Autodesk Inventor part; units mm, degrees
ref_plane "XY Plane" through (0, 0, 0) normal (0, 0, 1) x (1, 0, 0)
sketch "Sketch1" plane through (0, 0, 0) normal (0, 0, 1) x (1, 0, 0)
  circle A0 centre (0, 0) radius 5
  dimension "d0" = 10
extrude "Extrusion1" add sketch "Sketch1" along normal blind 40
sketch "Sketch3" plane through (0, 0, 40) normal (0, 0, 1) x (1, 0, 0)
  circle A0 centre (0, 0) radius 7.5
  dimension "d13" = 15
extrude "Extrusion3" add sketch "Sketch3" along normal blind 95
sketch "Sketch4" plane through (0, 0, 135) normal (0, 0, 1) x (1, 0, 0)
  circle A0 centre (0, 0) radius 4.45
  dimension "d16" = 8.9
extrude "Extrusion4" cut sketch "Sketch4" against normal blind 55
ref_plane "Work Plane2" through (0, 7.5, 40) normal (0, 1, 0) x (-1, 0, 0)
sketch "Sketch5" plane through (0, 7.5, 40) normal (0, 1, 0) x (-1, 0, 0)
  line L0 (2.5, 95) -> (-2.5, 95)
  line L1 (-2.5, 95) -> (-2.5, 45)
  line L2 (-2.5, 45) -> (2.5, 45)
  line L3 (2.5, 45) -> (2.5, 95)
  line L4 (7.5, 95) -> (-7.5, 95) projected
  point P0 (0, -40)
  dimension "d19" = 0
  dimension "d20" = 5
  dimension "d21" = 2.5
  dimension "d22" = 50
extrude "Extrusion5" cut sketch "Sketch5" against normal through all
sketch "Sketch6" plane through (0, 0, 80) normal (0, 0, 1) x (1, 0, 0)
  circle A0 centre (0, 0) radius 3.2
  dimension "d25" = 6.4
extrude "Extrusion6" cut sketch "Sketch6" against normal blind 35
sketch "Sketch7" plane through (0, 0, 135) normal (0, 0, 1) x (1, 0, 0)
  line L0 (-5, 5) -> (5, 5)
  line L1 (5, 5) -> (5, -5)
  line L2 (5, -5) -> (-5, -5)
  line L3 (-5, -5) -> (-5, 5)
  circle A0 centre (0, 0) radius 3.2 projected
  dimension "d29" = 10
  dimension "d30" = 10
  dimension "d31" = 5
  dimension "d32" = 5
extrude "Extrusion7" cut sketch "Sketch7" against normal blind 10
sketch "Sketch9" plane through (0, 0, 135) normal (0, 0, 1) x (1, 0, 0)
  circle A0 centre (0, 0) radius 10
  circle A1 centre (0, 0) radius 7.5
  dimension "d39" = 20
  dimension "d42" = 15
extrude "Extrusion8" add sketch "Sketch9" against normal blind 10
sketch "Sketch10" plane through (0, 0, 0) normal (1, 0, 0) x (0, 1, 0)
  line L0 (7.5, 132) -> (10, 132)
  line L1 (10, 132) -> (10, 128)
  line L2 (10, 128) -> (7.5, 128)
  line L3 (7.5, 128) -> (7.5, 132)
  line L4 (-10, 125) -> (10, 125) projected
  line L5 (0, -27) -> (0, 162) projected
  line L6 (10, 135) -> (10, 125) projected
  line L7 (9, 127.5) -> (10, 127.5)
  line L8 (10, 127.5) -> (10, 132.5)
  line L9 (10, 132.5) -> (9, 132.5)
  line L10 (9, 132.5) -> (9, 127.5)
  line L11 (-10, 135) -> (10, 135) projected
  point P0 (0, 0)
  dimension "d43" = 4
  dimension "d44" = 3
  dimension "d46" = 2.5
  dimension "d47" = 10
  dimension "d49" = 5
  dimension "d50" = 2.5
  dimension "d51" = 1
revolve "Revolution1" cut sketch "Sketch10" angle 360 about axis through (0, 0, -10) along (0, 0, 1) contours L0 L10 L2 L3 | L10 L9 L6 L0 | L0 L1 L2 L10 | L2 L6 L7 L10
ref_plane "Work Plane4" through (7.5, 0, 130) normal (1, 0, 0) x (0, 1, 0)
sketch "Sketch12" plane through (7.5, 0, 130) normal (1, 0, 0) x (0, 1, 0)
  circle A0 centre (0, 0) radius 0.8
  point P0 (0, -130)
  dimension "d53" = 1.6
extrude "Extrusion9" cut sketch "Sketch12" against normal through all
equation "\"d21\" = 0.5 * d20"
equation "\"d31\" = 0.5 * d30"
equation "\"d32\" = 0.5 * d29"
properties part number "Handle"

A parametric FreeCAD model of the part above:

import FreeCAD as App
import Part
import Sketcher

V = App.Vector
Q = App.Units.Quantity

doc = App.newDocument("Part")
body = doc.addObject("PartDesign::Body", "Body")

# Sketch on XY plane
sketch1 = body.newObject("Sketcher::SketchObject", "Sketch")
sketch1.AttachmentSupport = (doc.getObject("XY_Plane"), [""])
sketch1.MapMode = "FlatFace"
sketch1.addGeometry(Part.Circle(V(0, 0, 0), V(0, 0, 1), 5), False)
sketch1.addConstraint(Sketcher.Constraint("Coincident", 0, 3, -1, 1))
sketch1.addConstraint(Sketcher.Constraint("Diameter", 0, Q("10 mm")))
pad1 = body.newObject("PartDesign::Pad", "Pad")
pad1.Profile = sketch1
pad1.Length = 40

# Sketch on XY plane
sketch2 = body.newObject("Sketcher::SketchObject", "Sketch001")
sketch2.AttachmentSupport = (doc.getObject("XY_Plane"), [""])
sketch2.MapMode = "FlatFace"
sketch2.AttachmentOffset = App.Placement(V(0, 0, 40), App.Rotation())
sketch2.addGeometry(Part.Circle(V(0, 0, 0), V(0, 0, 1), 8), False)
sketch2.addConstraint(Sketcher.Constraint("Coincident", 0, 3, -1, 1))
sketch2.addConstraint(Sketcher.Constraint("Diameter", 0, Q("15 mm")))
pad2 = body.newObject("PartDesign::Pad", "Pad001")
pad2.Profile = sketch2
pad2.Length = 95

# Sketch on XY plane
sketch3 = body.newObject("Sketcher::SketchObject", "Sketch002")
sketch3.AttachmentSupport = (doc.getObject("XY_Plane"), [""])
sketch3.MapMode = "FlatFace"
sketch3.AttachmentOffset = App.Placement(V(0, 0, 135), App.Rotation())
sketch3.addGeometry(Part.Circle(V(0, 0, 0), V(0, 0, 1), 4.5), False)
sketch3.addConstraint(Sketcher.Constraint("Coincident", 0, 3, -1, 1))
sketch3.addConstraint(Sketcher.Constraint("Diameter", 0, Q("8.9 mm")))
pocket1 = body.newObject("PartDesign::Pocket", "Pocket")
pocket1.Profile = sketch3
pocket1.Length = 55

# Sketch on XZ plane
sketch4 = body.newObject("Sketcher::SketchObject", "Sketch003")
sketch4.AttachmentSupport = (doc.getObject("XZ_Plane"), [""])
sketch4.MapMode = "FlatFace"
sketch4.AttachmentOffset = App.Placement(V(0, 0, -7.5), App.Rotation())
sketch4.addGeometry(Part.LineSegment(V(-2, 85, 0), V(-2, 135, 0)), False)
sketch4.addGeometry(Part.LineSegment(V(-2, 135, 0), V(2, 135, 0)), False)
sketch4.addGeometry(Part.LineSegment(V(2, 135, 0), V(2, 85, 0)), False)
sketch4.addGeometry(Part.LineSegment(V(2, 85, 0), V(-2, 85, 0)), False)
sketch4.addConstraint(Sketcher.Constraint("Coincident", 0, 2, 1, 1))
sketch4.addConstraint(Sketcher.Constraint("Coincident", 1, 2, 2, 1))
sketch4.addConstraint(Sketcher.Constraint("Coincident", 2, 2, 3, 1))
sketch4.addConstraint(Sketcher.Constraint("Coincident", 3, 2, 0, 1))
sketch4.addConstraint(Sketcher.Constraint("Vertical", 0))
sketch4.addConstraint(Sketcher.Constraint("Horizontal", 1))
sketch4.addConstraint(Sketcher.Constraint("Vertical", 2))
sketch4.addConstraint(Sketcher.Constraint("Horizontal", 3))
sketch4.addConstraint(Sketcher.Constraint("DistanceX", 1, 1, 1, 2, Q("5 mm")))
sketch4.addConstraint(Sketcher.Constraint("DistanceY", 0, 1, 0, 2, Q("50 mm")))
sketch4.addConstraint(Sketcher.Constraint("DistanceX", 0, 2, -1, 1, Q("2.5 mm")))
sketch4.addConstraint(Sketcher.Constraint("DistanceY", -1, 1, 0, 2, Q("135 mm")))
pocket2 = body.newObject("PartDesign::Pocket", "Pocket001")
pocket2.Profile = sketch4
pocket2.Type = "ThroughAll"
pocket2.Reversed = True

# Sketch on XY plane
sketch5 = body.newObject("Sketcher::SketchObject", "Sketch004")
sketch5.AttachmentSupport = (doc.getObject("XY_Plane"), [""])
sketch5.MapMode = "FlatFace"
sketch5.AttachmentOffset = App.Placement(V(0, 0, 80), App.Rotation())
sketch5.addGeometry(Part.Circle(V(0, 0, 0), V(0, 0, 1), 3.2), False)
sketch5.addConstraint(Sketcher.Constraint("Coincident", 0, 3, -1, 1))
sketch5.addConstraint(Sketcher.Constraint("Diameter", 0, Q("6.4 mm")))
pocket3 = body.newObject("PartDesign::Pocket", "Pocket002")
pocket3.Profile = sketch5
pocket3.Length = 35

# Sketch on XY plane
sketch6 = body.newObject("Sketcher::SketchObject", "Sketch005")
sketch6.AttachmentSupport = (doc.getObject("XY_Plane"), [""])
sketch6.MapMode = "FlatFace"
sketch6.AttachmentOffset = App.Placement(V(0, 0, 135), App.Rotation())
sketch6.addGeometry(Part.LineSegment(V(5, 5, 0), V(-5, 5, 0)), False)
sketch6.addGeometry(Part.LineSegment(V(-5, 5, 0), V(-5, -5, 0)), False)
sketch6.addGeometry(Part.LineSegment(V(-5, -5, 0), V(5, -5, 0)), False)
sketch6.addGeometry(Part.LineSegment(V(5, -5, 0), V(5, 5, 0)), False)
sketch6.addGeometry(Part.Circle(V(0, 0, 0), V(0, 0, 1), 3.2), False)
sketch6.addConstraint(Sketcher.Constraint("Coincident", 0, 2, 1, 1))
sketch6.addConstraint(Sketcher.Constraint("Coincident", 1, 2, 2, 1))
sketch6.addConstraint(Sketcher.Constraint("Coincident", 2, 2, 3, 1))
sketch6.addConstraint(Sketcher.Constraint("Coincident", 3, 2, 0, 1))
sketch6.addConstraint(Sketcher.Constraint("Horizontal", 0))
sketch6.addConstraint(Sketcher.Constraint("Vertical", 1))
sketch6.addConstraint(Sketcher.Constraint("Horizontal", 2))
sketch6.addConstraint(Sketcher.Constraint("Vertical", 3))
sketch6.addConstraint(Sketcher.Constraint("Coincident", 4, 3, -1, 1))
sketch6.addConstraint(Sketcher.Constraint("Symmetric", 0, 2, 2, 2, -1, 1))
sketch6.addConstraint(Sketcher.Constraint("Equal", 2, 1))
sketch6.addConstraint(Sketcher.Constraint("DistanceX", 0, 2, 0, 1, Q("10 mm")))
sketch6.addConstraint(Sketcher.Constraint("Diameter", 4, Q("6.4 mm")))
pocket4 = body.newObject("PartDesign::Pocket", "Pocket003")
pocket4.Profile = sketch6
pocket4.Length = 10

# Sketch on XY plane
sketch7 = body.newObject("Sketcher::SketchObject", "Sketch006")
sketch7.AttachmentSupport = (doc.getObject("XY_Plane"), [""])
sketch7.MapMode = "FlatFace"
sketch7.AttachmentOffset = App.Placement(V(0, 0, 135), App.Rotation())
sketch7.addGeometry(Part.Circle(V(0, 0, 0), V(0, 0, 1), 10), False)
sketch7.addGeometry(Part.Circle(V(0, 0, 0), V(0, 0, 1), 8), False)
sketch7.addConstraint(Sketcher.Constraint("Coincident", 0, 3, -1, 1))
sketch7.addConstraint(Sketcher.Constraint("Coincident", 1, 3, -1, 1))
sketch7.addConstraint(Sketcher.Constraint("Diameter", 0, Q("20 mm")))
sketch7.addConstraint(Sketcher.Constraint("Diameter", 1, Q("15 mm")))
pad3 = body.newObject("PartDesign::Pad", "Pad002")
pad3.Profile = sketch7
pad3.Length = 10
pad3.Reversed = True

# Sketch on YZ plane
sketch8 = body.newObject("Sketcher::SketchObject", "Sketch007")
sketch8.AttachmentSupport = (doc.getObject("YZ_Plane"), [""])
sketch8.MapMode = "FlatFace"
sketch8.addGeometry(Part.LineSegment(V(9, 132, 0), V(7.5, 132, 0)), False)
sketch8.addGeometry(Part.LineSegment(V(7.5, 132, 0), V(7.5, 128, 0)), False)
sketch8.addGeometry(Part.LineSegment(V(7.5, 128, 0), V(9, 128, 0)), False)
sketch8.addGeometry(Part.LineSegment(V(9, 128, 0), V(9, 127.5, 0)), False)
sketch8.addGeometry(Part.LineSegment(V(9, 127.5, 0), V(10, 127.5, 0)), False)
sketch8.addGeometry(Part.LineSegment(V(10, 127.5, 0), V(10, 132.5, 0)), False)
sketch8.addGeometry(Part.LineSegment(V(10, 132.5, 0), V(9, 132.5, 0)), False)
sketch8.addGeometry(Part.LineSegment(V(9, 132.5, 0), V(9, 132, 0)), False)
sketch8.addConstraint(Sketcher.Constraint("Coincident", 0, 2, 1, 1))
sketch8.addConstraint(Sketcher.Constraint("Coincident", 1, 2, 2, 1))
sketch8.addConstraint(Sketcher.Constraint("Coincident", 2, 2, 3, 1))
sketch8.addConstraint(Sketcher.Constraint("Coincident", 3, 2, 4, 1))
sketch8.addConstraint(Sketcher.Constraint("Coincident", 4, 2, 5, 1))
sketch8.addConstraint(Sketcher.Constraint("Coincident", 5, 2, 6, 1))
sketch8.addConstraint(Sketcher.Constraint("Coincident", 6, 2, 7, 1))
sketch8.addConstraint(Sketcher.Constraint("Coincident", 7, 2, 0, 1))
sketch8.addConstraint(Sketcher.Constraint("Horizontal", 0))
sketch8.addConstraint(Sketcher.Constraint("Vertical", 1))
sketch8.addConstraint(Sketcher.Constraint("Horizontal", 2))
sketch8.addConstraint(Sketcher.Constraint("Vertical", 3))
sketch8.addConstraint(Sketcher.Constraint("Horizontal", 4))
sketch8.addConstraint(Sketcher.Constraint("Vertical", 5))
sketch8.addConstraint(Sketcher.Constraint("Horizontal", 6))
sketch8.addConstraint(Sketcher.Constraint("Vertical", 7))
sketch8.addConstraint(Sketcher.Constraint("Vertical", 3, 2, 6, 2))
sketch8.addConstraint(Sketcher.Constraint("Equal", 3, 7))
sketch8.addConstraint(Sketcher.Constraint("DistanceX", 4, 1, 4, 2, Q("1 mm")))
sketch8.addConstraint(Sketcher.Constraint("DistanceY", 1, 2, 1, 1, Q("4 mm")))
sketch8.addConstraint(Sketcher.Constraint("DistanceY", 5, 1, 5, 2, Q("5 mm")))
sketch8.addConstraint(Sketcher.Constraint("DistanceX", -1, 1, 4, 2, Q("10 mm")))
sketch8.addConstraint(Sketcher.Constraint("DistanceX", 1, 2, 4, 2, Q("2.5 mm")))
sketch8.addConstraint(Sketcher.Constraint("DistanceY", -1, 1, 0, 2, Q("132 mm")))
groove = body.newObject("PartDesign::Groove", "Groove")
groove.Profile = sketch8
groove.ReferenceAxis = (sketch8, ["V_Axis"])
groove.Angle = 360

# Sketch on YZ plane
sketch9 = body.newObject("Sketcher::SketchObject", "Sketch008")
sketch9.AttachmentSupport = (doc.getObject("YZ_Plane"), [""])
sketch9.MapMode = "FlatFace"
sketch9.AttachmentOffset = App.Placement(V(0, 0, 7.5), App.Rotation())
sketch9.addGeometry(Part.Circle(V(0, 130, 0), V(0, 0, 1), 0.8), False)
sketch9.addConstraint(Sketcher.Constraint("PointOnObject", 0, 3, -2))
sketch9.addConstraint(Sketcher.Constraint("Diameter", 0, Q("1.6 mm")))
sketch9.addConstraint(Sketcher.Constraint("DistanceY", -1, 1, 0, 3, Q("130 mm")))
pocket5 = body.newObject("PartDesign::Pocket", "Pocket004")
pocket5.Profile = sketch9
pocket5.Type = "ThroughAll"

doc.recompute()
